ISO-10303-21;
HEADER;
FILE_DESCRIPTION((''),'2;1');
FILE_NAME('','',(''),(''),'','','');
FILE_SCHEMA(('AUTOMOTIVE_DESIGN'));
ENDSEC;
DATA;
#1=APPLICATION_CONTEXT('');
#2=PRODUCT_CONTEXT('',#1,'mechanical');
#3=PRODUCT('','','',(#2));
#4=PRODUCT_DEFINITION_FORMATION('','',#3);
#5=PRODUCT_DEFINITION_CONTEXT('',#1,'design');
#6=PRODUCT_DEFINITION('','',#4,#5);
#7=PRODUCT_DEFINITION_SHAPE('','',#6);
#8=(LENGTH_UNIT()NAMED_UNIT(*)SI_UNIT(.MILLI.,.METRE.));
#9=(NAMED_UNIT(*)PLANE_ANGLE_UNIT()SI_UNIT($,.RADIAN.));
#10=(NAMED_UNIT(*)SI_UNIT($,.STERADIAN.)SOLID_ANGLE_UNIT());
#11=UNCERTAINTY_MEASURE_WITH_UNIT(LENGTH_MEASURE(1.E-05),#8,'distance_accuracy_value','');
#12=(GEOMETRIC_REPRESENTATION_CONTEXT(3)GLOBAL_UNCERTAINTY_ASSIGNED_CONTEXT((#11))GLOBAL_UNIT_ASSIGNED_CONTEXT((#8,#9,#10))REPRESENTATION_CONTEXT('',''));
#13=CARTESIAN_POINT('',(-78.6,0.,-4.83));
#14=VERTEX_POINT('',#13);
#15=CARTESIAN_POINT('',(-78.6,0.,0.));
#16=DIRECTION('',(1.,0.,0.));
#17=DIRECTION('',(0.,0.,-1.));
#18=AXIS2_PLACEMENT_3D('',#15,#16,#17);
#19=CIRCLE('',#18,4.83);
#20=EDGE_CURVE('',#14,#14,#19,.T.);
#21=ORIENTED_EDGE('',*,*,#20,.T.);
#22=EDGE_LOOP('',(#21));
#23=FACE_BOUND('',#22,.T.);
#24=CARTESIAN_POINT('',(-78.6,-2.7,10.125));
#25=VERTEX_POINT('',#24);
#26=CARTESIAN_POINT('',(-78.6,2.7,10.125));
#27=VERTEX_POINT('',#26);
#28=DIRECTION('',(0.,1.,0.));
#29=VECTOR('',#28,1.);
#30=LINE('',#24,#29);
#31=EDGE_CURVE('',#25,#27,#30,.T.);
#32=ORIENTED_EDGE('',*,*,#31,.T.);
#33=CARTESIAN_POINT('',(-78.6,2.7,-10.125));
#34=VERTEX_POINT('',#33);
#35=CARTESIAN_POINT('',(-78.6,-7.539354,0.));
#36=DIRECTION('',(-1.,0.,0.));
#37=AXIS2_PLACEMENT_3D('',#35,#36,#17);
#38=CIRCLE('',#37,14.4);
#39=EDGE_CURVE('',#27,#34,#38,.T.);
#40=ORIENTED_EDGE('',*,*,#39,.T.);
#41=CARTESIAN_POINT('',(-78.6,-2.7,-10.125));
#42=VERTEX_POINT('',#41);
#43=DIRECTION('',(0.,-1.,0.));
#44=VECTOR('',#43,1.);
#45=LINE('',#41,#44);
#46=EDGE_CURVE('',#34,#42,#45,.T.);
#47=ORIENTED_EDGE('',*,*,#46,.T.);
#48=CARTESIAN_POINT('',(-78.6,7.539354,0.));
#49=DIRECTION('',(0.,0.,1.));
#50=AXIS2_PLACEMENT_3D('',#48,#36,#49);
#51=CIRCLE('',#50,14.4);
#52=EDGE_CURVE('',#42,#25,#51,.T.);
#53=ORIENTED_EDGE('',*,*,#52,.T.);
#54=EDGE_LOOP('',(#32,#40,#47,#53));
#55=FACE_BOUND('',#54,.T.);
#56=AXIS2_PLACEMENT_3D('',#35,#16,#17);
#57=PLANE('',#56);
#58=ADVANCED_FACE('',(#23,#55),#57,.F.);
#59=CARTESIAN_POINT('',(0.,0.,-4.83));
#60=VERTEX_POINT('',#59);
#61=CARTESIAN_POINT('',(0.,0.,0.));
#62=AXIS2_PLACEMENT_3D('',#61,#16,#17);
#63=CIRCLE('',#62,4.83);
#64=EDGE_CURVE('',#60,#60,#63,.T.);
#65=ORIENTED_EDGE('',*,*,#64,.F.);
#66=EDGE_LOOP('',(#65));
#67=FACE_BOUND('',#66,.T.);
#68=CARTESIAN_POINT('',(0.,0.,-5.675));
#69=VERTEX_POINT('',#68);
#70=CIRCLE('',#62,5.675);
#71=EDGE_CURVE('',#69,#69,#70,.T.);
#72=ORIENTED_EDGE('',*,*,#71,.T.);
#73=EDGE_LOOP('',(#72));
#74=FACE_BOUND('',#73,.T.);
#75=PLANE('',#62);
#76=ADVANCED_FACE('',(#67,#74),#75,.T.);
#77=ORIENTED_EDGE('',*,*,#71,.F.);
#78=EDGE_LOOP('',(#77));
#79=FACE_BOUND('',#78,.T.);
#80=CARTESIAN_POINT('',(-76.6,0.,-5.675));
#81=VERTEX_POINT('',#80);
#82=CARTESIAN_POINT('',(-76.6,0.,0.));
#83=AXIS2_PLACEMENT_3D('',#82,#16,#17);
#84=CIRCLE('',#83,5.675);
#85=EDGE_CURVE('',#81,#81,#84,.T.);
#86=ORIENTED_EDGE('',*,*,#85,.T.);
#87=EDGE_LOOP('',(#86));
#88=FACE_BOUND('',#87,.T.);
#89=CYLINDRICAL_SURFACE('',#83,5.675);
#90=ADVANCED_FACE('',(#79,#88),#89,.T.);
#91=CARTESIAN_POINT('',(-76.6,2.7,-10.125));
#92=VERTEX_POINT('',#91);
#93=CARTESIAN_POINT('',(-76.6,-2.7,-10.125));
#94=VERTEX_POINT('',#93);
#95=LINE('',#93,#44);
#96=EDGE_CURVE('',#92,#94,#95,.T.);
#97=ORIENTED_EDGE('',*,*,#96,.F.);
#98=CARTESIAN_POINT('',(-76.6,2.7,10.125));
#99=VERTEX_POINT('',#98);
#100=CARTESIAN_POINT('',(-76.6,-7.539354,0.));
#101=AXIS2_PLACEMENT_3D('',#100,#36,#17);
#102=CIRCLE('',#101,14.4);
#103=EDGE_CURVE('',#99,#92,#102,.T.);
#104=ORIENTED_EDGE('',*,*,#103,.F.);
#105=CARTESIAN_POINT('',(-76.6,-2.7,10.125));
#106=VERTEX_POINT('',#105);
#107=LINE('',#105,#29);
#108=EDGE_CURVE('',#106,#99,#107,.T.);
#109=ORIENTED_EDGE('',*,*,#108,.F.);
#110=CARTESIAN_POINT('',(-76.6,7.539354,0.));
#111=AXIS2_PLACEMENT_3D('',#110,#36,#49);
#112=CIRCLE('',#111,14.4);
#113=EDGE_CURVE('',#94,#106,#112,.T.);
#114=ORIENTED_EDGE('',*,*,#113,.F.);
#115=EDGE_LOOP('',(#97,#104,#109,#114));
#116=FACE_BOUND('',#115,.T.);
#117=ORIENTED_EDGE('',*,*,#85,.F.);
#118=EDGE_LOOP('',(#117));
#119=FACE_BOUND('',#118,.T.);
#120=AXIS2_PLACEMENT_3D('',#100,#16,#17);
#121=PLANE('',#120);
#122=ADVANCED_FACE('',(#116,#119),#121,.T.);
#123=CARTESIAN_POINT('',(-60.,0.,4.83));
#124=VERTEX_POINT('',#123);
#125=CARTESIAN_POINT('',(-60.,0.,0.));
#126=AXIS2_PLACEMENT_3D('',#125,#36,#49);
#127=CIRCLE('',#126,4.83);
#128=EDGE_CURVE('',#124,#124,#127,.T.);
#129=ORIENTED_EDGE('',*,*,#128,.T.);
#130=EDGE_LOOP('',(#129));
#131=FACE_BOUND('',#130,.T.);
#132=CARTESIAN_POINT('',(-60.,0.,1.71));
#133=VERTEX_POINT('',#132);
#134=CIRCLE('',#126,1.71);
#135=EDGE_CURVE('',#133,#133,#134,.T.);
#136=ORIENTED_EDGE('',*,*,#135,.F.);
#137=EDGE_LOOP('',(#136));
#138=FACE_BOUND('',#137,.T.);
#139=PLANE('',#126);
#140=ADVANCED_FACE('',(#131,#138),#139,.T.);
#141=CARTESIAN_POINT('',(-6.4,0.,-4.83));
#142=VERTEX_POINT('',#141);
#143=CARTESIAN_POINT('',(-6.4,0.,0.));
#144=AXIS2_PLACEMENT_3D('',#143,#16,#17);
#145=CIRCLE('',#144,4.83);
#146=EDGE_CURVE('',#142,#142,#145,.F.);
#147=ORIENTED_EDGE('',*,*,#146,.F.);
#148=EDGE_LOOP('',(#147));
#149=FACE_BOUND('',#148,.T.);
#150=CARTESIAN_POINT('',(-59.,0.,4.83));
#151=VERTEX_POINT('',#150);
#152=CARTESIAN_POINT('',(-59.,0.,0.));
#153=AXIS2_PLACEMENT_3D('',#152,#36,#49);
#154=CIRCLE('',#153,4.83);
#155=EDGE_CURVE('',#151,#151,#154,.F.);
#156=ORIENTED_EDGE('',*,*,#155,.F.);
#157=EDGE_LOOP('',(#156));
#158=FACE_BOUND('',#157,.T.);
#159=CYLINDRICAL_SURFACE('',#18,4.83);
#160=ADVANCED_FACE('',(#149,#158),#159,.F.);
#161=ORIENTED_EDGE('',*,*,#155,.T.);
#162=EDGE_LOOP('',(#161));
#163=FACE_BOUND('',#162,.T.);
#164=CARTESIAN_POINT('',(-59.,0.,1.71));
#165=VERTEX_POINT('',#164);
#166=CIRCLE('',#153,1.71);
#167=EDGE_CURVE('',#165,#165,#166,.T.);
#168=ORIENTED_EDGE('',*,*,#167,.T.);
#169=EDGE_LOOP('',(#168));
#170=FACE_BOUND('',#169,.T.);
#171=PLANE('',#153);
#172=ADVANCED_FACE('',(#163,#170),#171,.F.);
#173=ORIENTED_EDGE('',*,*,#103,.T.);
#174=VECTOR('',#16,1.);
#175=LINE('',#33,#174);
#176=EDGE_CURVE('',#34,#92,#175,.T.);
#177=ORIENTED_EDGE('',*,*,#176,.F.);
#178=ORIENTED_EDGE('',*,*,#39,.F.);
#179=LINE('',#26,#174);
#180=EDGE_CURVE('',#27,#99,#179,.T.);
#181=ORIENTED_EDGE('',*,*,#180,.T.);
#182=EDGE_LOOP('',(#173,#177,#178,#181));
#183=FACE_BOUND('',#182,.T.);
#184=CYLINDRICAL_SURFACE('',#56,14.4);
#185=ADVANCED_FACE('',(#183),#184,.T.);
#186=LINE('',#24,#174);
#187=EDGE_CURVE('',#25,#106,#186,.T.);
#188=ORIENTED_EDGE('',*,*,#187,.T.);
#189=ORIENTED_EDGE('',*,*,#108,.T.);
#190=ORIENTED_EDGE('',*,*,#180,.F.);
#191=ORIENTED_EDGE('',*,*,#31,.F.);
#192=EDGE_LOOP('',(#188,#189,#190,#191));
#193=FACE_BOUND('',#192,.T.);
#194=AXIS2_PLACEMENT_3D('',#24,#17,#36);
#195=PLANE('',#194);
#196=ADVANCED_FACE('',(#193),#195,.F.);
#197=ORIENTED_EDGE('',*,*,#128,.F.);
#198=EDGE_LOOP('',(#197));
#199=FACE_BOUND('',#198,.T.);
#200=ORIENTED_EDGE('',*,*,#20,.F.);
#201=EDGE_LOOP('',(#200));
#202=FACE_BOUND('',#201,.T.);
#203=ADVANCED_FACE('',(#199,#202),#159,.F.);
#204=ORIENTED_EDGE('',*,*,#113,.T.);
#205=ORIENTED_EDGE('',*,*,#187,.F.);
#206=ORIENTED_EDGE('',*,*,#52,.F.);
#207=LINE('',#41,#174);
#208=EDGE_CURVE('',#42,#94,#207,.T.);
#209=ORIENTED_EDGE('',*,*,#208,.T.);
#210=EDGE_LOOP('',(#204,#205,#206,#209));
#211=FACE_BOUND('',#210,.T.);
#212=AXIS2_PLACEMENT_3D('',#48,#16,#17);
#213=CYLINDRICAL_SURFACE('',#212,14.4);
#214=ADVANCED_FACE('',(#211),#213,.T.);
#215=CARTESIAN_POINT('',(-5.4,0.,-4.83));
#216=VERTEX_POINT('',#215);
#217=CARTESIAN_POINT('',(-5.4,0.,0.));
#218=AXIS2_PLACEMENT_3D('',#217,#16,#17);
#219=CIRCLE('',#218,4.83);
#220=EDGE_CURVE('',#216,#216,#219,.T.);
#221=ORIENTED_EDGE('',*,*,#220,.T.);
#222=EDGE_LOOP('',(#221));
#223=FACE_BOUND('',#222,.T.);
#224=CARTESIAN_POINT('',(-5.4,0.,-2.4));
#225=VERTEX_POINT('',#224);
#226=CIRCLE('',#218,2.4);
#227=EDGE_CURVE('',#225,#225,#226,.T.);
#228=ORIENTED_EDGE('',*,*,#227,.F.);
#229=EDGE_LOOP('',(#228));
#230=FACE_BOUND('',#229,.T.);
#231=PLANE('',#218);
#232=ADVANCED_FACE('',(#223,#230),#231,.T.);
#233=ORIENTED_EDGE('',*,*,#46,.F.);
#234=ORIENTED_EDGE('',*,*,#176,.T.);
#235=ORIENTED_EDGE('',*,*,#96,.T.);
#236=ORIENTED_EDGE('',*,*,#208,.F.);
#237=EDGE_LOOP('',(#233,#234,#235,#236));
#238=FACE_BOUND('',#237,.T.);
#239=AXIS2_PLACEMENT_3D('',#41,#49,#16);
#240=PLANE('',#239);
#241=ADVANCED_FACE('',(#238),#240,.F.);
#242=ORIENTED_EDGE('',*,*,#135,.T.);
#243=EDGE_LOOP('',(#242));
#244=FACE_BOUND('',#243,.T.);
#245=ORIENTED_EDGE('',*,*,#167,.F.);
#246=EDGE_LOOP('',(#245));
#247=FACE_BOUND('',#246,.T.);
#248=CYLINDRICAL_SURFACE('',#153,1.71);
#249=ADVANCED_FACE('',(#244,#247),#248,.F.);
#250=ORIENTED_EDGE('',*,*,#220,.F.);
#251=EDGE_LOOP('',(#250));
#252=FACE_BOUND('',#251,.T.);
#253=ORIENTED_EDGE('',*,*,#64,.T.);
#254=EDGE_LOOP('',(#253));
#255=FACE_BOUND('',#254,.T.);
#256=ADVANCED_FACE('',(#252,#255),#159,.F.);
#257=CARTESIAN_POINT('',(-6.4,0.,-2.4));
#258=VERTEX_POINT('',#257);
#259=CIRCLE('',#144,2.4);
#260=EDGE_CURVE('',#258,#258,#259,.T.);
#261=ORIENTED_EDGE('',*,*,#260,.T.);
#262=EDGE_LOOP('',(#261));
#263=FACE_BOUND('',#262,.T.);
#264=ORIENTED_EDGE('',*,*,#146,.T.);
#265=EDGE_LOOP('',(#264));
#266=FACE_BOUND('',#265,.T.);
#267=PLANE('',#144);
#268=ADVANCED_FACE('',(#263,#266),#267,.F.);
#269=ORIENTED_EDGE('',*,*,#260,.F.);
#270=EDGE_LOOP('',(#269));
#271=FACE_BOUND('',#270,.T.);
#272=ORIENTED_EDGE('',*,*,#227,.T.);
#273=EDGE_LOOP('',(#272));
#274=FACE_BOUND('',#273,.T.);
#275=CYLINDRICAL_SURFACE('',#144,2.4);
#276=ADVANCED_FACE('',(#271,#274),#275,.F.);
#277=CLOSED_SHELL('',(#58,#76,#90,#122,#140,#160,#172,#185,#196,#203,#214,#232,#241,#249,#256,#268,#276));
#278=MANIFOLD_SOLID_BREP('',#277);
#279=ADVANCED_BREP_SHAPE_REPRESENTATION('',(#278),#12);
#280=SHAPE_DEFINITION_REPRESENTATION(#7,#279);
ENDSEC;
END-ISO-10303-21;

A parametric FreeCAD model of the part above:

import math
import FreeCAD as App
import Part
import Sketcher
Q = App.Units.Quantity

doc = App.newDocument("Part")
body = doc.addObject("PartDesign::Body", "Body")

# Sketch on YZ plane
sketch1 = body.newObject("Sketcher::SketchObject", "Sketch")
sketch1.AttachmentSupport = (doc.getObject("YZ_Plane"), [""])
sketch1.MapMode = "FlatFace"
sketch1.addGeometry(Part.Circle(App.Vector(0, 0, 0), App.Vector(0, 0, 1), 6), False)
sketch1.addConstraint(Sketcher.Constraint("Coincident", 0, 3, -1, 1))
sketch1.addConstraint(Sketcher.Constraint("Diameter", 0, Q("11.35 mm")))
pad1 = body.newObject("PartDesign::Pad", "Pad")
pad1.Profile = sketch1
pad1.Length = 76.6
pad1.Reversed = True

# Sketch on YZ plane
sketch2 = body.newObject("Sketcher::SketchObject", "Sketch001")
sketch2.AttachmentSupport = (doc.getObject("YZ_Plane"), [""])
sketch2.MapMode = "FlatFace"
sketch2.AttachmentOffset = App.Placement(App.Vector(0, 0, -76.6), App.Rotation())
sketch2.addGeometry(Part.LineSegment(App.Vector(3, -10, 0), App.Vector(-3, -10, 0)), False)
sketch2.addGeometry(Part.ArcOfCircle(Part.Circle(App.Vector(8, 0, 0), App.Vector(0, 0, 1), 14), math.radians(135), math.radians(225)), False)
sketch2.addGeometry(Part.LineSegment(App.Vector(-3, 10, 0), App.Vector(3, 10, 0)), False)
sketch2.addGeometry(Part.ArcOfCircle(Part.Circle(App.Vector(-8, 0, 0), App.Vector(0, 0, 1), 14), math.radians(-45), math.radians(45)), False)
sketch2.addConstraint(Sketcher.Constraint("Coincident", 0, 2, 1, 2))
sketch2.addConstraint(Sketcher.Constraint("Coincident", 1, 1, 2, 1))
sketch2.addConstraint(Sketcher.Constraint("Coincident", 2, 2, 3, 2))
sketch2.addConstraint(Sketcher.Constraint("Coincident", 3, 1, 0, 1))
sketch2.addConstraint(Sketcher.Constraint("Horizontal", 0))
sketch2.addConstraint(Sketcher.Constraint("Horizontal", 2))
sketch2.addConstraint(Sketcher.Constraint("Equal", 1, 3))
sketch2.addConstraint(Sketcher.Constraint("Symmetric", 1, 3, 3, 3, -1, 1))
sketch2.addConstraint(Sketcher.Constraint("Symmetric", 0, 2, 1, 1, -1))
sketch2.addConstraint(Sketcher.Constraint("Radius", 1, Q("14.4 mm")))
sketch2.addConstraint(Sketcher.Constraint("DistanceX", 0, 2, 0, 1, Q("5.4 mm")))
sketch2.addConstraint(Sketcher.Constraint("DistanceY", 0, 2, 1, 1, Q("20.25 mm")))
pad2 = body.newObject("PartDesign::Pad", "Pad001")
pad2.Profile = sketch2
pad2.Length = 2
pad2.Reversed = True

# Sketch on YZ plane
sketch3 = body.newObject("Sketcher::SketchObject", "Sketch002")
sketch3.AttachmentSupport = (doc.getObject("YZ_Plane"), [""])
sketch3.MapMode = "FlatFace"
sketch3.addGeometry(Part.Circle(App.Vector(0, 0, 0), App.Vector(0, 0, 1), 4.8), False)
sketch3.addConstraint(Sketcher.Constraint("Coincident", 0, 3, -1, 1))
sketch3.addConstraint(Sketcher.Constraint("Diameter", 0, Q("9.66 mm")))
pocket1 = body.newObject("PartDesign::Pocket", "Pocket")
pocket1.Profile = sketch3
pocket1.Type = "ThroughAll"

# Sketch on YZ plane
sketch4 = body.newObject("Sketcher::SketchObject", "Sketch003")
sketch4.AttachmentSupport = (doc.getObject("YZ_Plane"), [""])
sketch4.MapMode = "FlatFace"
sketch4.AttachmentOffset = App.Placement(App.Vector(0, 0, -59), App.Rotation())
sketch4.addGeometry(Part.Circle(App.Vector(0, 0, 0), App.Vector(0, 0, 1), 4.8), False)
sketch4.addGeometry(Part.Circle(App.Vector(0, 0, 0), App.Vector(0, 0, 1), 1.7), False)
sketch4.addConstraint(Sketcher.Constraint("Coincident", 0, 3, -1, 1))
sketch4.addConstraint(Sketcher.Constraint("Coincident", 1, 3, -1, 1))
sketch4.addConstraint(Sketcher.Constraint("Diameter", 0, Q("9.66 mm")))
sketch4.addConstraint(Sketcher.Constraint("Diameter", 1, Q("3.42 mm")))
pad3 = body.newObject("PartDesign::Pad", "Pad002")
pad3.Profile = sketch4
pad3.Length = 1
pad3.Reversed = True

# Sketch on YZ plane
sketch5 = body.newObject("Sketcher::SketchObject", "Sketch004")
sketch5.AttachmentSupport = (doc.getObject("YZ_Plane"), [""])
sketch5.MapMode = "FlatFace"
sketch5.AttachmentOffset = App.Placement(App.Vector(0, 0, -5.4), App.Rotation())
sketch5.addGeometry(Part.Circle(App.Vector(0, 0, 0), App.Vector(0, 0, 1), 4.8), False)
sketch5.addGeometry(Part.Circle(App.Vector(0, 0, 0), App.Vector(0, 0, 1), 2.4), False)
sketch5.addConstraint(Sketcher.Constraint("Coincident", 0, 3, -1, 1))
sketch5.addConstraint(Sketcher.Constraint("Coincident", 1, 3, -1, 1))
sketch5.addConstraint(Sketcher.Constraint("Diameter", 1, Q("4.8 mm")))
sketch5.addConstraint(Sketcher.Constraint("Diameter", 0, Q("9.66 mm")))
pad4 = body.newObject("PartDesign::Pad", "Pad003")
pad4.Profile = sketch5
pad4.Length = 1
pad4.Reversed = True

doc.recompute()
